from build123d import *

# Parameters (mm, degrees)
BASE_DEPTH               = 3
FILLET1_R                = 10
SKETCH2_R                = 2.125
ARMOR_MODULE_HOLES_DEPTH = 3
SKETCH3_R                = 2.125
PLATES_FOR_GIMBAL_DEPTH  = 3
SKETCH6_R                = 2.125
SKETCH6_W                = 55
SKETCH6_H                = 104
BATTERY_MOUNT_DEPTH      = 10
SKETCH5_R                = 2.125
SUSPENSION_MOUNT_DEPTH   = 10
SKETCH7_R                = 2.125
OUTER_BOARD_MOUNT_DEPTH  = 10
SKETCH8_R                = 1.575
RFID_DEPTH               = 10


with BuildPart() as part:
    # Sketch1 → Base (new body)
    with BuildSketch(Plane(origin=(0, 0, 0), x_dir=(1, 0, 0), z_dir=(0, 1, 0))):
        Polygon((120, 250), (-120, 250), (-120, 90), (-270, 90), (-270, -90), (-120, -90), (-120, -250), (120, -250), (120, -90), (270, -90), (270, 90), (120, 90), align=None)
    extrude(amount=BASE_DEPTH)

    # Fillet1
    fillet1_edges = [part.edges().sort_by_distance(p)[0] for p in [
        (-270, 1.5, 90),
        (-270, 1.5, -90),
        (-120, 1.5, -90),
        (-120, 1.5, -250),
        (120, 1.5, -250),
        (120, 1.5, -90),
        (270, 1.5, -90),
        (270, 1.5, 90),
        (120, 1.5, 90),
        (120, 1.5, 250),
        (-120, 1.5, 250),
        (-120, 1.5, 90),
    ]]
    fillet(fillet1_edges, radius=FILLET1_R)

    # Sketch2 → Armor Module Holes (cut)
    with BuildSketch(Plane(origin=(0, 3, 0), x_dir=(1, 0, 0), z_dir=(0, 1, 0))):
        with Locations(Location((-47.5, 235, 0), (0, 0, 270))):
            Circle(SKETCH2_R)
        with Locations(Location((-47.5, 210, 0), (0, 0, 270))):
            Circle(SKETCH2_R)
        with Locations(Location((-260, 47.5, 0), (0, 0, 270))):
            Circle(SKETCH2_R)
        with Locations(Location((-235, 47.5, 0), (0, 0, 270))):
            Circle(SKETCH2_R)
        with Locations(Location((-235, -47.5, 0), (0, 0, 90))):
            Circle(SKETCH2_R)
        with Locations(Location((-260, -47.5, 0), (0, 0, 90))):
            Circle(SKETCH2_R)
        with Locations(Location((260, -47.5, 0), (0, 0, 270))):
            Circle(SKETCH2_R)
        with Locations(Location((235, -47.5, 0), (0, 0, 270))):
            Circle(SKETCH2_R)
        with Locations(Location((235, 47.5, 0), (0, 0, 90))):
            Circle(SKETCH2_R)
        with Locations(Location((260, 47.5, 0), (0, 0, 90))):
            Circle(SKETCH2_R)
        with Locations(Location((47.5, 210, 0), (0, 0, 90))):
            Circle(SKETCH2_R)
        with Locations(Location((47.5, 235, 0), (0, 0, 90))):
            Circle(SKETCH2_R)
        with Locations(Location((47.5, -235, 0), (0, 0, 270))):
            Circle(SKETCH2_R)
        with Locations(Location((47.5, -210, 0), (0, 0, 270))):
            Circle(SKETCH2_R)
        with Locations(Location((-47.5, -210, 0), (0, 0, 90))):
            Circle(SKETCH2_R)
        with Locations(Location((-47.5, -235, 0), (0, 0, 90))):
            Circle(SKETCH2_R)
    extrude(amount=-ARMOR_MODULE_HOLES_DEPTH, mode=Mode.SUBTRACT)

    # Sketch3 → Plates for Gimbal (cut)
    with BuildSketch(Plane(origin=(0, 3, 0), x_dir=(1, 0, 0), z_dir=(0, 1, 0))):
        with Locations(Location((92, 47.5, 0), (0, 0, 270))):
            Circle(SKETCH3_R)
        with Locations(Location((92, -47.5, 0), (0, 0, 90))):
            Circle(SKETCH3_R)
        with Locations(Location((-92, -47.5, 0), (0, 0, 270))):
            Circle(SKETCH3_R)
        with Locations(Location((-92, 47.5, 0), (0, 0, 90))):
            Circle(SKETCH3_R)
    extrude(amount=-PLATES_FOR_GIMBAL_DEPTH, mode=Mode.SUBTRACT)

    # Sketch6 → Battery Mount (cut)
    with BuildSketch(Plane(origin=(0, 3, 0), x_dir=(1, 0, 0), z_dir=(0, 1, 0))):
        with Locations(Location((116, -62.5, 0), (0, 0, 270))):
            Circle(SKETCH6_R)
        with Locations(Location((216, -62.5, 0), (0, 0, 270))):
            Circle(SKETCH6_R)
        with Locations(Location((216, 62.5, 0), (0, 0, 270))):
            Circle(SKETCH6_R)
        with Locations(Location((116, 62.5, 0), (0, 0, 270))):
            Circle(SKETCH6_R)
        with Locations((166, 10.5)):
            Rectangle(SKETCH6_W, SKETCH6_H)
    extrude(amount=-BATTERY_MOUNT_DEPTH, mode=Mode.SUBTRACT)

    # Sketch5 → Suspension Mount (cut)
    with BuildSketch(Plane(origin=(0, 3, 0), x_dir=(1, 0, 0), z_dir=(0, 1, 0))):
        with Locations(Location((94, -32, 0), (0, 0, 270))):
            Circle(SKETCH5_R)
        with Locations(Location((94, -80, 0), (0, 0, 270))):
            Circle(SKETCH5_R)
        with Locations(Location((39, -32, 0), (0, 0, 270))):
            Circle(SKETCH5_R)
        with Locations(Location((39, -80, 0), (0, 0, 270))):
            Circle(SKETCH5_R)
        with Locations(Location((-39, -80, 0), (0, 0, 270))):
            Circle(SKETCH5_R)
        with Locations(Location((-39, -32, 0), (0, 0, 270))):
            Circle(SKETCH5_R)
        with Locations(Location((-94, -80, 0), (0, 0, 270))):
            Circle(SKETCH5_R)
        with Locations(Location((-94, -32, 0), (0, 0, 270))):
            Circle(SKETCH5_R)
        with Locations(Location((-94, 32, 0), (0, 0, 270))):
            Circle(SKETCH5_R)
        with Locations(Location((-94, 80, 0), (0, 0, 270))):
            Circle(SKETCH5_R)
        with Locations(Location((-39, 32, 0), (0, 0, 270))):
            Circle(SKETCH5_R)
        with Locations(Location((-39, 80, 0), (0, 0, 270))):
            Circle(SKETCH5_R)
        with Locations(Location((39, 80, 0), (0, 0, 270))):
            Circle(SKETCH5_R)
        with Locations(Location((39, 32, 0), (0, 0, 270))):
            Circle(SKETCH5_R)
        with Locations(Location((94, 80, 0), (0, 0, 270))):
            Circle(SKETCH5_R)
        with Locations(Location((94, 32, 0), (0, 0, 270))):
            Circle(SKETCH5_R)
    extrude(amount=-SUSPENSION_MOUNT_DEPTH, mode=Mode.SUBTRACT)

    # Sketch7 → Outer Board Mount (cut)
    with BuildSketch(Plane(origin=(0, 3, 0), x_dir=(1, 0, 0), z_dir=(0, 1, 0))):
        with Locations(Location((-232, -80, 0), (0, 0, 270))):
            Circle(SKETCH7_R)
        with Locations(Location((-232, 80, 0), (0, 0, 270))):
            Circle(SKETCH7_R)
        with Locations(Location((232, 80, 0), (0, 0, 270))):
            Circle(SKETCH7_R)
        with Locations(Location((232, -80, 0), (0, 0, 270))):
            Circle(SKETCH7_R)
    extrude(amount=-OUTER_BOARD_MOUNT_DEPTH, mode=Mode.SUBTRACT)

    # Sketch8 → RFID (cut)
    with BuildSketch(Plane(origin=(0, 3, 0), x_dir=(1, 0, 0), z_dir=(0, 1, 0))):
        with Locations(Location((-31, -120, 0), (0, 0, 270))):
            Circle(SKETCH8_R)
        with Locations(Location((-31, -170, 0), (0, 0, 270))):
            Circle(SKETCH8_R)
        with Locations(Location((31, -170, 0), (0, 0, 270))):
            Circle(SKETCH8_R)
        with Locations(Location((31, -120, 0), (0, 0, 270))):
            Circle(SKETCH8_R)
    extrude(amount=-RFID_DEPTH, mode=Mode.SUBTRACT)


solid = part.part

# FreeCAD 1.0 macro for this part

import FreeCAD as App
import Part
import Sketcher
from FreeCAD import Vector


def edges_at(feature, points):
    """Names of the edges that pass closest to the given points."""
    edges = feature.Shape.Edges
    near = lambda p: min(range(len(edges)), key=lambda i: edges[i].distToShape(Part.Vertex(*p))[0])
    return sorted({f"Edge{near(p) + 1}" for p in points})

doc = App.newDocument("Part")
params = doc.addObject("Spreadsheet::Sheet", "Params")
for row, (alias, value) in enumerate([
    ("sketch1_width", "240 mm"),
    ("sketch1_width2", "150 mm"),
    ("sketch1_height", "160 mm"),
    ("sketch1_height2", "180 mm"),
    ("pad1_length", "3 mm"),
    ("fillet_radius", "10 mm"),
    ("sketch2_diameter", "4.25 mm"),
    ("pocket1_length", "3 mm"),
    ("sketch3_diameter", "4.25 mm"),
    ("pocket2_length", "3 mm"),
    ("sketch4_diameter", "4.25 mm"),
    ("sketch4_width", "55 mm"),
    ("sketch4_height", "104 mm"),
    ("pocket3_length", "10 mm"),
    ("sketch5_diameter", "4.25 mm"),
    ("pocket4_length", "10 mm"),
    ("sketch6_diameter", "4.25 mm"),
    ("pocket5_length", "10 mm"),
    ("sketch7_diameter", "3.15 mm"),
    ("pocket6_length", "10 mm"),
], start=1):
    params.set(f"A{row}", alias)
    params.set(f"B{row}", "=" + value)
    params.setAlias(f"B{row}", alias)

body = doc.addObject("PartDesign::Body", "Body")

# Sketch on XZ plane
sketch1 = doc.addObject("Sketcher::SketchObject", "Sketch")
body.addObject(sketch1)
sketch1.AttachmentSupport = (doc.XZ_Plane, [""])
sketch1.MapMode = "FlatFace"
sketch1.addGeometry([
    Part.LineSegment(Vector(120, -250, 0), Vector(-120, -250, 0)),  # 0
    Part.LineSegment(Vector(-120, -250, 0), Vector(-120, -90, 0)),  # 1
    Part.LineSegment(Vector(-120, -90, 0), Vector(-270, -90, 0)),  # 2
    Part.LineSegment(Vector(-270, -90, 0), Vector(-270, 90, 0)),  # 3
    Part.LineSegment(Vector(-270, 90, 0), Vector(-120, 90, 0)),  # 4
    Part.LineSegment(Vector(-120, 90, 0), Vector(-120, 250, 0)),  # 5
    Part.LineSegment(Vector(-120, 250, 0), Vector(120, 250, 0)),  # 6
    Part.LineSegment(Vector(120, 250, 0), Vector(120, 90, 0)),  # 7
    Part.LineSegment(Vector(120, 90, 0), Vector(270, 90, 0)),  # 8
    Part.LineSegment(Vector(270, 90, 0), Vector(270, -90, 0)),  # 9
    Part.LineSegment(Vector(270, -90, 0), Vector(120, -90, 0)),  # 10
    Part.LineSegment(Vector(120, -90, 0), Vector(120, -250, 0)),  # 11
], False)
sketch1.addConstraint([
    Sketcher.Constraint("Coincident", 0, 2, 1, 1),
    Sketcher.Constraint("Coincident", 1, 2, 2, 1),
    Sketcher.Constraint("Coincident", 2, 2, 3, 1),
    Sketcher.Constraint("Coincident", 3, 2, 4, 1),
    Sketcher.Constraint("Coincident", 4, 2, 5, 1),
    Sketcher.Constraint("Coincident", 5, 2, 6, 1),
    Sketcher.Constraint("Coincident", 6, 2, 7, 1),
    Sketcher.Constraint("Coincident", 7, 2, 8, 1),
    Sketcher.Constraint("Coincident", 8, 2, 9, 1),
    Sketcher.Constraint("Coincident", 9, 2, 10, 1),
    Sketcher.Constraint("Coincident", 10, 2, 11, 1),
    Sketcher.Constraint("Coincident", 11, 2, 0, 1),
    Sketcher.Constraint("Horizontal", 0),
    Sketcher.Constraint("Vertical", 1),
    Sketcher.Constraint("Horizontal", 2),
    Sketcher.Constraint("Vertical", 3),
    Sketcher.Constraint("Horizontal", 4),
    Sketcher.Constraint("Vertical", 5),
    Sketcher.Constraint("Horizontal", 6),
    Sketcher.Constraint("Vertical", 7),
    Sketcher.Constraint("Horizontal", 8),
    Sketcher.Constraint("Vertical", 9),
    Sketcher.Constraint("Horizontal", 10),
    Sketcher.Constraint("Vertical", 11),
    Sketcher.Constraint("Symmetric", 0, 2, 6, 2, -1, 1),
    Sketcher.Constraint("Symmetric", 2, 2, 8, 2, -1, 1),
    Sketcher.Constraint("Symmetric", 4, 2, 10, 2, -1, 1),
    Sketcher.Constraint("Symmetric", 4, 2, 7, 2, -2),
    Sketcher.Constraint("DistanceX", 0, 2, 0, 1, 240.0),
    Sketcher.Constraint("DistanceX", 2, 2, 2, 1, 150.0),
    Sketcher.Constraint("DistanceY", 1, 1, 1, 2, 160.0),
    Sketcher.Constraint("DistanceY", 3, 1, 3, 2, 180.0),
])
sketch1.setExpression("Constraints[28]", "Params.sketch1_width")
sketch1.setExpression("Constraints[29]", "Params.sketch1_width2")
sketch1.setExpression("Constraints[30]", "Params.sketch1_height")
sketch1.setExpression("Constraints[31]", "Params.sketch1_height2")
pad1 = doc.addObject("PartDesign::Pad", "Pad")
body.addObject(pad1)
pad1.Profile = sketch1
pad1.setExpression("Length", "Params.pad1_length")
pad1.Reversed = True
doc.recompute()

fillet = doc.addObject("PartDesign::Fillet", "Fillet")
body.addObject(fillet)
fillet.Base = (pad1, edges_at(pad1, [
    (-270, 1.5, 90),
    (-270, 1.5, -90),
    (-120, 1.5, -90),
    (-120, 1.5, -250),
    (120, 1.5, -250),
    (120, 1.5, -90),
    (270, 1.5, -90),
    (270, 1.5, 90),
    (120, 1.5, 90),
    (120, 1.5, 250),
    (-120, 1.5, 250),
    (-120, 1.5, 90),
]))
fillet.setExpression("Radius", "Params.fillet_radius")

# Sketch on XZ plane
sketch2 = doc.addObject("Sketcher::SketchObject", "Sketch001")
body.addObject(sketch2)
sketch2.AttachmentSupport = (doc.XZ_Plane, [""])
sketch2.MapMode = "FlatFace"
sketch2.AttachmentOffset = App.Placement(Vector(0, 0, -3), App.Rotation())
sketch2.addGeometry([
    Part.Circle(Vector(-47.5, -235, 0), Vector(0, 0, 1), 2.1),  # 0
    Part.Circle(Vector(-47.5, -210, 0), Vector(0, 0, 1), 2.1),  # 1
    Part.Circle(Vector(-260, -47.5, 0), Vector(0, 0, 1), 2.1),  # 2
    Part.Circle(Vector(-235, -47.5, 0), Vector(0, 0, 1), 2.1),  # 3
    Part.Circle(Vector(-235, 47.5, 0), Vector(0, 0, 1), 2.1),  # 4
    Part.Circle(Vector(-260, 47.5, 0), Vector(0, 0, 1), 2.1),  # 5
    Part.Circle(Vector(260, 47.5, 0), Vector(0, 0, 1), 2.1),  # 6
    Part.Circle(Vector(235, 47.5, 0), Vector(0, 0, 1), 2.1),  # 7
    Part.Circle(Vector(235, -47.5, 0), Vector(0, 0, 1), 2.1),  # 8
    Part.Circle(Vector(260, -47.5, 0), Vector(0, 0, 1), 2.1),  # 9
    Part.Circle(Vector(47.5, -210, 0), Vector(0, 0, 1), 2.1),  # 10
    Part.Circle(Vector(47.5, -235, 0), Vector(0, 0, 1), 2.1),  # 11
    Part.Circle(Vector(47.5, 235, 0), Vector(0, 0, 1), 2.1),  # 12
    Part.Circle(Vector(47.5, 210, 0), Vector(0, 0, 1), 2.1),  # 13
    Part.Circle(Vector(-47.5, 210, 0), Vector(0, 0, 1), 2.1),  # 14
    Part.Circle(Vector(-47.5, 235, 0), Vector(0, 0, 1), 2.1),  # 15
], False)
sketch2.addConstraint([
    Sketcher.Constraint("Equal", 0, 1),
    Sketcher.Constraint("Equal", 1, 2),
    Sketcher.Constraint("Equal", 2, 3),
    Sketcher.Constraint("Equal", 3, 4),
    Sketcher.Constraint("Equal", 4, 5),
    Sketcher.Constraint("Equal", 5, 6),
    Sketcher.Constraint("Equal", 6, 7),
    Sketcher.Constraint("Equal", 7, 8),
    Sketcher.Constraint("Equal", 8, 9),
    Sketcher.Constraint("Equal", 9, 10),
    Sketcher.Constraint("Equal", 10, 11),
    Sketcher.Constraint("Equal", 11, 12),
    Sketcher.Constraint("Equal", 12, 13),
    Sketcher.Constraint("Equal", 13, 14),
    Sketcher.Constraint("Equal", 14, 15),
    Sketcher.Constraint("Symmetric", 2, 3, 6, 3, -1, 1),
    Sketcher.Constraint("Symmetric", 3, 3, 7, 3, -1, 1),
    Sketcher.Constraint("Symmetric", 4, 3, 8, 3, -1, 1),
    Sketcher.Constraint("Symmetric", 5, 3, 9, 3, -1, 1),
    Sketcher.Constraint("Symmetric", 0, 3, 12, 3, -1, 1),
    Sketcher.Constraint("Symmetric", 1, 3, 13, 3, -1, 1),
    Sketcher.Constraint("Symmetric", 10, 3, 14, 3, -1, 1),
    Sketcher.Constraint("Symmetric", 11, 3, 15, 3, -1, 1),
    Sketcher.Constraint("Symmetric", 5, 3, 6, 3, -2),
    Sketcher.Constraint("Symmetric", 4, 3, 7, 3, -2),
    Sketcher.Constraint("Symmetric", 1, 3, 10, 3, -2),
    Sketcher.Constraint("Symmetric", 0, 3, 11, 3, -2),
    Sketcher.Constraint("Horizontal", 2, 3, 3, 3),
    Sketcher.Constraint("Vertical", 0, 3, 1, 3),
    Sketcher.Constraint("Diameter", 0, 4.25),
    Sketcher.Constraint("DistanceY", 0, 3, -1, 1, 235.0),
    Sketcher.Constraint("DistanceY", 1, 3, -1, 1, 210.0),
    Sketcher.Constraint("DistanceX", 2, 3, -1, 1, 260.0),
    Sketcher.Constraint("DistanceX", 3, 3, -1, 1, 235.0),
    Sketcher.Constraint("DistanceY", 3, 3, 4, 3, 95.0),
    Sketcher.Constraint("DistanceX", 1, 3, 10, 3, 95.0),
])
sketch2.setExpression("Constraints[29]", "Params.sketch2_diameter")
pocket1 = doc.addObject("PartDesign::Pocket", "Pocket")
body.addObject(pocket1)
pocket1.Profile = sketch2
pocket1.setExpression("Length", "Params.pocket1_length")
pocket1.Reversed = True

# Sketch on XZ plane
sketch3 = doc.addObject("Sketcher::SketchObject", "Sketch002")
body.addObject(sketch3)
sketch3.AttachmentSupport = (doc.XZ_Plane, [""])
sketch3.MapMode = "FlatFace"
sketch3.AttachmentOffset = App.Placement(Vector(0, 0, -3), App.Rotation())
sketch3.addGeometry([
    Part.Circle(Vector(92, -47.5, 0), Vector(0, 0, 1), 2.1),
    Part.Circle(Vector(92, 47.5, 0), Vector(0, 0, 1), 2.1),
    Part.Circle(Vector(-92, 47.5, 0), Vector(0, 0, 1), 2.1),
    Part.Circle(Vector(-92, -47.5, 0), Vector(0, 0, 1), 2.1),
], False)
sketch3.addConstraint([
    Sketcher.Constraint("Equal", 0, 1),
    Sketcher.Constraint("Equal", 1, 2),
    Sketcher.Constraint("Equal", 2, 3),
    Sketcher.Constraint("Symmetric", 0, 3, 2, 3, -1, 1),
    Sketcher.Constraint("Symmetric", 1, 3, 3, 3, -1, 1),
    Sketcher.Constraint("Symmetric", 1, 3, 2, 3, -2),
    Sketcher.Constraint("Diameter", 0, 4.25),
    Sketcher.Constraint("DistanceX", -1, 1, 0, 3, 92.0),
    Sketcher.Constraint("DistanceY", 0, 3, 1, 3, 95.0),
])
sketch3.setExpression("Constraints[6]", "Params.sketch3_diameter")
pocket2 = doc.addObject("PartDesign::Pocket", "Pocket001")
body.addObject(pocket2)
pocket2.Profile = sketch3
pocket2.setExpression("Length", "Params.pocket2_length")
pocket2.Reversed = True

# Sketch on XZ plane
sketch4 = doc.addObject("Sketcher::SketchObject", "Sketch003")
body.addObject(sketch4)
sketch4.AttachmentSupport = (doc.XZ_Plane, [""])
sketch4.MapMode = "FlatFace"
sketch4.AttachmentOffset = App.Placement(Vector(0, 0, -3), App.Rotation())
sketch4.addGeometry([
    Part.Circle(Vector(116, 62.5, 0), Vector(0, 0, 1), 2.1),  # 0
    Part.Circle(Vector(216, 62.5, 0), Vector(0, 0, 1), 2.1),  # 1
    Part.Circle(Vector(216, -62.5, 0), Vector(0, 0, 1), 2.1),  # 2
    Part.Circle(Vector(116, -62.5, 0), Vector(0, 0, 1), 2.1),  # 3
    Part.LineSegment(Vector(138.5, -62.5, 0), Vector(138.5, 41.5, 0)),  # 4
    Part.LineSegment(Vector(138.5, 41.5, 0), Vector(193.5, 41.5, 0)),  # 5
    Part.LineSegment(Vector(193.5, 41.5, 0), Vector(193.5, -62.5, 0)),  # 6
    Part.LineSegment(Vector(193.5, -62.5, 0), Vector(138.5, -62.5, 0)),  # 7
], False)
sketch4.addConstraint([
    Sketcher.Constraint("Coincident", 4, 2, 5, 1),
    Sketcher.Constraint("Coincident", 5, 2, 6, 1),
    Sketcher.Constraint("Coincident", 6, 2, 7, 1),
    Sketcher.Constraint("Coincident", 7, 2, 4, 1),
    Sketcher.Constraint("Vertical", 4),
    Sketcher.Constraint("Horizontal", 5),
    Sketcher.Constraint("Vertical", 6),
    Sketcher.Constraint("Horizontal", 7),
    Sketcher.Constraint("Equal", 0, 1),
    Sketcher.Constraint("Equal", 1, 2),
    Sketcher.Constraint("Equal", 2, 3),
    Sketcher.Constraint("Symmetric", 1, 3, 2, 3, -1),
    Sketcher.Constraint("Symmetric", 0, 3, 3, 3, -1),
    Sketcher.Constraint("Horizontal", 0, 3, 1, 3),
    Sketcher.Constraint("Horizontal", 3, 3, 6, 2),
    Sketcher.Constraint("Diameter", 0, 4.25),
    Sketcher.Constraint("DistanceX", 5, 1, 5, 2, 55.0),
    Sketcher.Constraint("DistanceY", 4, 1, 4, 2, 104.0),
    Sketcher.Constraint("DistanceX", -1, 1, 0, 3, 116.0),
    Sketcher.Constraint("DistanceX", -1, 1, 1, 3, 216.0),
    Sketcher.Constraint("DistanceY", 2, 3, 1, 3, 125.0),
    Sketcher.Constraint("DistanceX", -1, 1, 4, 2, 138.5),
])
sketch4.setExpression("Constraints[15]", "Params.sketch4_diameter")
sketch4.setExpression("Constraints[16]", "Params.sketch4_width")
sketch4.setExpression("Constraints[17]", "Params.sketch4_height")
pocket3 = doc.addObject("PartDesign::Pocket", "Pocket002")
body.addObject(pocket3)
pocket3.Profile = sketch4
pocket3.setExpression("Length", "Params.pocket3_length")
pocket3.Reversed = True

# Sketch on XZ plane
sketch5 = doc.addObject("Sketcher::SketchObject", "Sketch004")
body.addObject(sketch5)
sketch5.AttachmentSupport = (doc.XZ_Plane, [""])
sketch5.MapMode = "FlatFace"
sketch5.AttachmentOffset = App.Placement(Vector(0, 0, -3), App.Rotation())
sketch5.addGeometry([
    Part.Circle(Vector(94, 32, 0), Vector(0, 0, 1), 2.1),  # 0
    Part.Circle(Vector(94, 80, 0), Vector(0, 0, 1), 2.1),  # 1
    Part.Circle(Vector(39, 32, 0), Vector(0, 0, 1), 2.1),  # 2
    Part.Circle(Vector(39, 80, 0), Vector(0, 0, 1), 2.1),  # 3
    Part.Circle(Vector(-39, 80, 0), Vector(0, 0, 1), 2.1),  # 4
    Part.Circle(Vector(-39, 32, 0), Vector(0, 0, 1), 2.1),  # 5
    Part.Circle(Vector(-94, 80, 0), Vector(0, 0, 1), 2.1),  # 6
    Part.Circle(Vector(-94, 32, 0), Vector(0, 0, 1), 2.1),  # 7
    Part.Circle(Vector(-94, -32, 0), Vector(0, 0, 1), 2.1),  # 8
    Part.Circle(Vector(-94, -80, 0), Vector(0, 0, 1), 2.1),  # 9
    Part.Circle(Vector(-39, -32, 0), Vector(0, 0, 1), 2.1),  # 10
    Part.Circle(Vector(-39, -80, 0), Vector(0, 0, 1), 2.1),  # 11
    Part.Circle(Vector(39, -80, 0), Vector(0, 0, 1), 2.1),  # 12
    Part.Circle(Vector(39, -32, 0), Vector(0, 0, 1), 2.1),  # 13
    Part.Circle(Vector(94, -80, 0), Vector(0, 0, 1), 2.1),  # 14
    Part.Circle(Vector(94, -32, 0), Vector(0, 0, 1), 2.1),  # 15
], False)
sketch5.addConstraint([
    Sketcher.Constraint("Equal", 0, 1),
    Sketcher.Constraint("Equal", 1, 2),
    Sketcher.Constraint("Equal", 2, 3),
    Sketcher.Constraint("Equal", 3, 4),
    Sketcher.Constraint("Equal", 4, 5),
    Sketcher.Constraint("Equal", 5, 6),
    Sketcher.Constraint("Equal", 6, 7),
    Sketcher.Constraint("Equal", 7, 8),
    Sketcher.Constraint("Equal", 8, 9),
    Sketcher.Constraint("Equal", 9, 10),
    Sketcher.Constraint("Equal", 10, 11),
    Sketcher.Constraint("Equal", 11, 12),
    Sketcher.Constraint("Equal", 12, 13),
    Sketcher.Constraint("Equal", 13, 14),
    Sketcher.Constraint("Equal", 14, 15),
    Sketcher.Constraint("Symmetric", 0, 3, 8, 3, -1, 1),
    Sketcher.Constraint("Symmetric", 1, 3, 9, 3, -1, 1),
    Sketcher.Constraint("Symmetric", 2, 3, 10, 3, -1, 1),
    Sketcher.Constraint("Symmetric", 3, 3, 11, 3, -1, 1),
    Sketcher.Constraint("Symmetric", 4, 3, 12, 3, -1, 1),
    Sketcher.Constraint("Symmetric", 5, 3, 13, 3, -1, 1),
    Sketcher.Constraint("Symmetric", 6, 3, 14, 3, -1, 1),
    Sketcher.Constraint("Symmetric", 7, 3, 15, 3, -1, 1),
    Sketcher.Constraint("Symmetric", 3, 3, 4, 3, -2),
    Sketcher.Constraint("Symmetric", 2, 3, 5, 3, -2),
    Sketcher.Constraint("Symmetric", 1, 3, 6, 3, -2),
    Sketcher.Constraint("Symmetric", 0, 3, 7, 3, -2),
    Sketcher.Constraint("Horizontal", 0, 3, 2, 3),
    Sketcher.Constraint("Horizontal", 1, 3, 3, 3),
    Sketcher.Constraint("Vertical", 0, 3, 1, 3),
    Sketcher.Constraint("Vertical", 2, 3, 3, 3),
    Sketcher.Constraint("Diameter", 0, 4.25),
    Sketcher.Constraint("DistanceX", -1, 1, 0, 3, 94.0),
    Sketcher.Constraint("DistanceY", -1, 1, 0, 3, 32.0),
    Sketcher.Constraint("DistanceY", -1, 1, 1, 3, 80.0),
    Sketcher.Constraint("DistanceX", -1, 1, 2, 3, 39.0),
])
sketch5.setExpression("Constraints[31]", "Params.sketch5_diameter")
pocket4 = doc.addObject("PartDesign::Pocket", "Pocket003")
body.addObject(pocket4)
pocket4.Profile = sketch5
pocket4.setExpression("Length", "Params.pocket4_length")
pocket4.Reversed = True

# Sketch on XZ plane
sketch6 = doc.addObject("Sketcher::SketchObject", "Sketch005")
body.addObject(sketch6)
sketch6.AttachmentSupport = (doc.XZ_Plane, [""])
sketch6.MapMode = "FlatFace"
sketch6.AttachmentOffset = App.Placement(Vector(0, 0, -3), App.Rotation())
sketch6.addGeometry([
    Part.Circle(Vector(-232, 80, 0), Vector(0, 0, 1), 2.1),
    Part.Circle(Vector(-232, -80, 0), Vector(0, 0, 1), 2.1),
    Part.Circle(Vector(232, -80, 0), Vector(0, 0, 1), 2.1),
    Part.Circle(Vector(232, 80, 0), Vector(0, 0, 1), 2.1),
], False)
sketch6.addConstraint([
    Sketcher.Constraint("Equal", 0, 1),
    Sketcher.Constraint("Equal", 1, 2),
    Sketcher.Constraint("Equal", 2, 3),
    Sketcher.Constraint("Symmetric", 0, 3, 2, 3, -1, 1),
    Sketcher.Constraint("Symmetric", 1, 3, 3, 3, -1, 1),
    Sketcher.Constraint("Symmetric", 1, 3, 2, 3, -2),
    Sketcher.Constraint("Diameter", 0, 4.25),
    Sketcher.Constraint("DistanceX", 0, 3, -1, 1, 232.0),
    Sketcher.Constraint("DistanceY", -1, 1, 0, 3, 80.0),
])
sketch6.setExpression("Constraints[6]", "Params.sketch6_diameter")
pocket5 = doc.addObject("PartDesign::Pocket", "Pocket004")
body.addObject(pocket5)
pocket5.Profile = sketch6
pocket5.setExpression("Length", "Params.pocket5_length")
pocket5.Reversed = True

# Sketch on XZ plane
sketch7 = doc.addObject("Sketcher::SketchObject", "Sketch006")
body.addObject(sketch7)
sketch7.AttachmentSupport = (doc.XZ_Plane, [""])
sketch7.MapMode = "FlatFace"
sketch7.AttachmentOffset = App.Placement(Vector(0, 0, -3), App.Rotation())
sketch7.addGeometry([
    Part.Circle(Vector(-31, 120, 0), Vector(0, 0, 1), 1.6),
    Part.Circle(Vector(-31, 170, 0), Vector(0, 0, 1), 1.6),
    Part.Circle(Vector(31, 170, 0), Vector(0, 0, 1), 1.6),
    Part.Circle(Vector(31, 120, 0), Vector(0, 0, 1), 1.6),
], False)
sketch7.addConstraint([
    Sketcher.Constraint("Equal", 0, 1),
    Sketcher.Constraint("Equal", 1, 2),
    Sketcher.Constraint("Equal", 2, 3),
    Sketcher.Constraint("Symmetric", 1, 3, 2, 3, -2),
    Sketcher.Constraint("Symmetric", 0, 3, 3, 3, -2),
    Sketcher.Constraint("Vertical", 0, 3, 1, 3),
    Sketcher.Constraint("Diameter", 0, 3.15),
    Sketcher.Constraint("DistanceX", 0, 3, -1, 1, 31.0),
    Sketcher.Constraint("DistanceY", -1, 1, 0, 3, 120.0),
    Sketcher.Constraint("DistanceY", -1, 1, 1, 3, 170.0),
])
sketch7.setExpression("Constraints[6]", "Params.sketch7_diameter")
pocket6 = doc.addObject("PartDesign::Pocket", "Pocket005")
body.addObject(pocket6)
pocket6.Profile = sketch7
pocket6.setExpression("Length", "Params.pocket6_length")
pocket6.Reversed = True

doc.recompute()
